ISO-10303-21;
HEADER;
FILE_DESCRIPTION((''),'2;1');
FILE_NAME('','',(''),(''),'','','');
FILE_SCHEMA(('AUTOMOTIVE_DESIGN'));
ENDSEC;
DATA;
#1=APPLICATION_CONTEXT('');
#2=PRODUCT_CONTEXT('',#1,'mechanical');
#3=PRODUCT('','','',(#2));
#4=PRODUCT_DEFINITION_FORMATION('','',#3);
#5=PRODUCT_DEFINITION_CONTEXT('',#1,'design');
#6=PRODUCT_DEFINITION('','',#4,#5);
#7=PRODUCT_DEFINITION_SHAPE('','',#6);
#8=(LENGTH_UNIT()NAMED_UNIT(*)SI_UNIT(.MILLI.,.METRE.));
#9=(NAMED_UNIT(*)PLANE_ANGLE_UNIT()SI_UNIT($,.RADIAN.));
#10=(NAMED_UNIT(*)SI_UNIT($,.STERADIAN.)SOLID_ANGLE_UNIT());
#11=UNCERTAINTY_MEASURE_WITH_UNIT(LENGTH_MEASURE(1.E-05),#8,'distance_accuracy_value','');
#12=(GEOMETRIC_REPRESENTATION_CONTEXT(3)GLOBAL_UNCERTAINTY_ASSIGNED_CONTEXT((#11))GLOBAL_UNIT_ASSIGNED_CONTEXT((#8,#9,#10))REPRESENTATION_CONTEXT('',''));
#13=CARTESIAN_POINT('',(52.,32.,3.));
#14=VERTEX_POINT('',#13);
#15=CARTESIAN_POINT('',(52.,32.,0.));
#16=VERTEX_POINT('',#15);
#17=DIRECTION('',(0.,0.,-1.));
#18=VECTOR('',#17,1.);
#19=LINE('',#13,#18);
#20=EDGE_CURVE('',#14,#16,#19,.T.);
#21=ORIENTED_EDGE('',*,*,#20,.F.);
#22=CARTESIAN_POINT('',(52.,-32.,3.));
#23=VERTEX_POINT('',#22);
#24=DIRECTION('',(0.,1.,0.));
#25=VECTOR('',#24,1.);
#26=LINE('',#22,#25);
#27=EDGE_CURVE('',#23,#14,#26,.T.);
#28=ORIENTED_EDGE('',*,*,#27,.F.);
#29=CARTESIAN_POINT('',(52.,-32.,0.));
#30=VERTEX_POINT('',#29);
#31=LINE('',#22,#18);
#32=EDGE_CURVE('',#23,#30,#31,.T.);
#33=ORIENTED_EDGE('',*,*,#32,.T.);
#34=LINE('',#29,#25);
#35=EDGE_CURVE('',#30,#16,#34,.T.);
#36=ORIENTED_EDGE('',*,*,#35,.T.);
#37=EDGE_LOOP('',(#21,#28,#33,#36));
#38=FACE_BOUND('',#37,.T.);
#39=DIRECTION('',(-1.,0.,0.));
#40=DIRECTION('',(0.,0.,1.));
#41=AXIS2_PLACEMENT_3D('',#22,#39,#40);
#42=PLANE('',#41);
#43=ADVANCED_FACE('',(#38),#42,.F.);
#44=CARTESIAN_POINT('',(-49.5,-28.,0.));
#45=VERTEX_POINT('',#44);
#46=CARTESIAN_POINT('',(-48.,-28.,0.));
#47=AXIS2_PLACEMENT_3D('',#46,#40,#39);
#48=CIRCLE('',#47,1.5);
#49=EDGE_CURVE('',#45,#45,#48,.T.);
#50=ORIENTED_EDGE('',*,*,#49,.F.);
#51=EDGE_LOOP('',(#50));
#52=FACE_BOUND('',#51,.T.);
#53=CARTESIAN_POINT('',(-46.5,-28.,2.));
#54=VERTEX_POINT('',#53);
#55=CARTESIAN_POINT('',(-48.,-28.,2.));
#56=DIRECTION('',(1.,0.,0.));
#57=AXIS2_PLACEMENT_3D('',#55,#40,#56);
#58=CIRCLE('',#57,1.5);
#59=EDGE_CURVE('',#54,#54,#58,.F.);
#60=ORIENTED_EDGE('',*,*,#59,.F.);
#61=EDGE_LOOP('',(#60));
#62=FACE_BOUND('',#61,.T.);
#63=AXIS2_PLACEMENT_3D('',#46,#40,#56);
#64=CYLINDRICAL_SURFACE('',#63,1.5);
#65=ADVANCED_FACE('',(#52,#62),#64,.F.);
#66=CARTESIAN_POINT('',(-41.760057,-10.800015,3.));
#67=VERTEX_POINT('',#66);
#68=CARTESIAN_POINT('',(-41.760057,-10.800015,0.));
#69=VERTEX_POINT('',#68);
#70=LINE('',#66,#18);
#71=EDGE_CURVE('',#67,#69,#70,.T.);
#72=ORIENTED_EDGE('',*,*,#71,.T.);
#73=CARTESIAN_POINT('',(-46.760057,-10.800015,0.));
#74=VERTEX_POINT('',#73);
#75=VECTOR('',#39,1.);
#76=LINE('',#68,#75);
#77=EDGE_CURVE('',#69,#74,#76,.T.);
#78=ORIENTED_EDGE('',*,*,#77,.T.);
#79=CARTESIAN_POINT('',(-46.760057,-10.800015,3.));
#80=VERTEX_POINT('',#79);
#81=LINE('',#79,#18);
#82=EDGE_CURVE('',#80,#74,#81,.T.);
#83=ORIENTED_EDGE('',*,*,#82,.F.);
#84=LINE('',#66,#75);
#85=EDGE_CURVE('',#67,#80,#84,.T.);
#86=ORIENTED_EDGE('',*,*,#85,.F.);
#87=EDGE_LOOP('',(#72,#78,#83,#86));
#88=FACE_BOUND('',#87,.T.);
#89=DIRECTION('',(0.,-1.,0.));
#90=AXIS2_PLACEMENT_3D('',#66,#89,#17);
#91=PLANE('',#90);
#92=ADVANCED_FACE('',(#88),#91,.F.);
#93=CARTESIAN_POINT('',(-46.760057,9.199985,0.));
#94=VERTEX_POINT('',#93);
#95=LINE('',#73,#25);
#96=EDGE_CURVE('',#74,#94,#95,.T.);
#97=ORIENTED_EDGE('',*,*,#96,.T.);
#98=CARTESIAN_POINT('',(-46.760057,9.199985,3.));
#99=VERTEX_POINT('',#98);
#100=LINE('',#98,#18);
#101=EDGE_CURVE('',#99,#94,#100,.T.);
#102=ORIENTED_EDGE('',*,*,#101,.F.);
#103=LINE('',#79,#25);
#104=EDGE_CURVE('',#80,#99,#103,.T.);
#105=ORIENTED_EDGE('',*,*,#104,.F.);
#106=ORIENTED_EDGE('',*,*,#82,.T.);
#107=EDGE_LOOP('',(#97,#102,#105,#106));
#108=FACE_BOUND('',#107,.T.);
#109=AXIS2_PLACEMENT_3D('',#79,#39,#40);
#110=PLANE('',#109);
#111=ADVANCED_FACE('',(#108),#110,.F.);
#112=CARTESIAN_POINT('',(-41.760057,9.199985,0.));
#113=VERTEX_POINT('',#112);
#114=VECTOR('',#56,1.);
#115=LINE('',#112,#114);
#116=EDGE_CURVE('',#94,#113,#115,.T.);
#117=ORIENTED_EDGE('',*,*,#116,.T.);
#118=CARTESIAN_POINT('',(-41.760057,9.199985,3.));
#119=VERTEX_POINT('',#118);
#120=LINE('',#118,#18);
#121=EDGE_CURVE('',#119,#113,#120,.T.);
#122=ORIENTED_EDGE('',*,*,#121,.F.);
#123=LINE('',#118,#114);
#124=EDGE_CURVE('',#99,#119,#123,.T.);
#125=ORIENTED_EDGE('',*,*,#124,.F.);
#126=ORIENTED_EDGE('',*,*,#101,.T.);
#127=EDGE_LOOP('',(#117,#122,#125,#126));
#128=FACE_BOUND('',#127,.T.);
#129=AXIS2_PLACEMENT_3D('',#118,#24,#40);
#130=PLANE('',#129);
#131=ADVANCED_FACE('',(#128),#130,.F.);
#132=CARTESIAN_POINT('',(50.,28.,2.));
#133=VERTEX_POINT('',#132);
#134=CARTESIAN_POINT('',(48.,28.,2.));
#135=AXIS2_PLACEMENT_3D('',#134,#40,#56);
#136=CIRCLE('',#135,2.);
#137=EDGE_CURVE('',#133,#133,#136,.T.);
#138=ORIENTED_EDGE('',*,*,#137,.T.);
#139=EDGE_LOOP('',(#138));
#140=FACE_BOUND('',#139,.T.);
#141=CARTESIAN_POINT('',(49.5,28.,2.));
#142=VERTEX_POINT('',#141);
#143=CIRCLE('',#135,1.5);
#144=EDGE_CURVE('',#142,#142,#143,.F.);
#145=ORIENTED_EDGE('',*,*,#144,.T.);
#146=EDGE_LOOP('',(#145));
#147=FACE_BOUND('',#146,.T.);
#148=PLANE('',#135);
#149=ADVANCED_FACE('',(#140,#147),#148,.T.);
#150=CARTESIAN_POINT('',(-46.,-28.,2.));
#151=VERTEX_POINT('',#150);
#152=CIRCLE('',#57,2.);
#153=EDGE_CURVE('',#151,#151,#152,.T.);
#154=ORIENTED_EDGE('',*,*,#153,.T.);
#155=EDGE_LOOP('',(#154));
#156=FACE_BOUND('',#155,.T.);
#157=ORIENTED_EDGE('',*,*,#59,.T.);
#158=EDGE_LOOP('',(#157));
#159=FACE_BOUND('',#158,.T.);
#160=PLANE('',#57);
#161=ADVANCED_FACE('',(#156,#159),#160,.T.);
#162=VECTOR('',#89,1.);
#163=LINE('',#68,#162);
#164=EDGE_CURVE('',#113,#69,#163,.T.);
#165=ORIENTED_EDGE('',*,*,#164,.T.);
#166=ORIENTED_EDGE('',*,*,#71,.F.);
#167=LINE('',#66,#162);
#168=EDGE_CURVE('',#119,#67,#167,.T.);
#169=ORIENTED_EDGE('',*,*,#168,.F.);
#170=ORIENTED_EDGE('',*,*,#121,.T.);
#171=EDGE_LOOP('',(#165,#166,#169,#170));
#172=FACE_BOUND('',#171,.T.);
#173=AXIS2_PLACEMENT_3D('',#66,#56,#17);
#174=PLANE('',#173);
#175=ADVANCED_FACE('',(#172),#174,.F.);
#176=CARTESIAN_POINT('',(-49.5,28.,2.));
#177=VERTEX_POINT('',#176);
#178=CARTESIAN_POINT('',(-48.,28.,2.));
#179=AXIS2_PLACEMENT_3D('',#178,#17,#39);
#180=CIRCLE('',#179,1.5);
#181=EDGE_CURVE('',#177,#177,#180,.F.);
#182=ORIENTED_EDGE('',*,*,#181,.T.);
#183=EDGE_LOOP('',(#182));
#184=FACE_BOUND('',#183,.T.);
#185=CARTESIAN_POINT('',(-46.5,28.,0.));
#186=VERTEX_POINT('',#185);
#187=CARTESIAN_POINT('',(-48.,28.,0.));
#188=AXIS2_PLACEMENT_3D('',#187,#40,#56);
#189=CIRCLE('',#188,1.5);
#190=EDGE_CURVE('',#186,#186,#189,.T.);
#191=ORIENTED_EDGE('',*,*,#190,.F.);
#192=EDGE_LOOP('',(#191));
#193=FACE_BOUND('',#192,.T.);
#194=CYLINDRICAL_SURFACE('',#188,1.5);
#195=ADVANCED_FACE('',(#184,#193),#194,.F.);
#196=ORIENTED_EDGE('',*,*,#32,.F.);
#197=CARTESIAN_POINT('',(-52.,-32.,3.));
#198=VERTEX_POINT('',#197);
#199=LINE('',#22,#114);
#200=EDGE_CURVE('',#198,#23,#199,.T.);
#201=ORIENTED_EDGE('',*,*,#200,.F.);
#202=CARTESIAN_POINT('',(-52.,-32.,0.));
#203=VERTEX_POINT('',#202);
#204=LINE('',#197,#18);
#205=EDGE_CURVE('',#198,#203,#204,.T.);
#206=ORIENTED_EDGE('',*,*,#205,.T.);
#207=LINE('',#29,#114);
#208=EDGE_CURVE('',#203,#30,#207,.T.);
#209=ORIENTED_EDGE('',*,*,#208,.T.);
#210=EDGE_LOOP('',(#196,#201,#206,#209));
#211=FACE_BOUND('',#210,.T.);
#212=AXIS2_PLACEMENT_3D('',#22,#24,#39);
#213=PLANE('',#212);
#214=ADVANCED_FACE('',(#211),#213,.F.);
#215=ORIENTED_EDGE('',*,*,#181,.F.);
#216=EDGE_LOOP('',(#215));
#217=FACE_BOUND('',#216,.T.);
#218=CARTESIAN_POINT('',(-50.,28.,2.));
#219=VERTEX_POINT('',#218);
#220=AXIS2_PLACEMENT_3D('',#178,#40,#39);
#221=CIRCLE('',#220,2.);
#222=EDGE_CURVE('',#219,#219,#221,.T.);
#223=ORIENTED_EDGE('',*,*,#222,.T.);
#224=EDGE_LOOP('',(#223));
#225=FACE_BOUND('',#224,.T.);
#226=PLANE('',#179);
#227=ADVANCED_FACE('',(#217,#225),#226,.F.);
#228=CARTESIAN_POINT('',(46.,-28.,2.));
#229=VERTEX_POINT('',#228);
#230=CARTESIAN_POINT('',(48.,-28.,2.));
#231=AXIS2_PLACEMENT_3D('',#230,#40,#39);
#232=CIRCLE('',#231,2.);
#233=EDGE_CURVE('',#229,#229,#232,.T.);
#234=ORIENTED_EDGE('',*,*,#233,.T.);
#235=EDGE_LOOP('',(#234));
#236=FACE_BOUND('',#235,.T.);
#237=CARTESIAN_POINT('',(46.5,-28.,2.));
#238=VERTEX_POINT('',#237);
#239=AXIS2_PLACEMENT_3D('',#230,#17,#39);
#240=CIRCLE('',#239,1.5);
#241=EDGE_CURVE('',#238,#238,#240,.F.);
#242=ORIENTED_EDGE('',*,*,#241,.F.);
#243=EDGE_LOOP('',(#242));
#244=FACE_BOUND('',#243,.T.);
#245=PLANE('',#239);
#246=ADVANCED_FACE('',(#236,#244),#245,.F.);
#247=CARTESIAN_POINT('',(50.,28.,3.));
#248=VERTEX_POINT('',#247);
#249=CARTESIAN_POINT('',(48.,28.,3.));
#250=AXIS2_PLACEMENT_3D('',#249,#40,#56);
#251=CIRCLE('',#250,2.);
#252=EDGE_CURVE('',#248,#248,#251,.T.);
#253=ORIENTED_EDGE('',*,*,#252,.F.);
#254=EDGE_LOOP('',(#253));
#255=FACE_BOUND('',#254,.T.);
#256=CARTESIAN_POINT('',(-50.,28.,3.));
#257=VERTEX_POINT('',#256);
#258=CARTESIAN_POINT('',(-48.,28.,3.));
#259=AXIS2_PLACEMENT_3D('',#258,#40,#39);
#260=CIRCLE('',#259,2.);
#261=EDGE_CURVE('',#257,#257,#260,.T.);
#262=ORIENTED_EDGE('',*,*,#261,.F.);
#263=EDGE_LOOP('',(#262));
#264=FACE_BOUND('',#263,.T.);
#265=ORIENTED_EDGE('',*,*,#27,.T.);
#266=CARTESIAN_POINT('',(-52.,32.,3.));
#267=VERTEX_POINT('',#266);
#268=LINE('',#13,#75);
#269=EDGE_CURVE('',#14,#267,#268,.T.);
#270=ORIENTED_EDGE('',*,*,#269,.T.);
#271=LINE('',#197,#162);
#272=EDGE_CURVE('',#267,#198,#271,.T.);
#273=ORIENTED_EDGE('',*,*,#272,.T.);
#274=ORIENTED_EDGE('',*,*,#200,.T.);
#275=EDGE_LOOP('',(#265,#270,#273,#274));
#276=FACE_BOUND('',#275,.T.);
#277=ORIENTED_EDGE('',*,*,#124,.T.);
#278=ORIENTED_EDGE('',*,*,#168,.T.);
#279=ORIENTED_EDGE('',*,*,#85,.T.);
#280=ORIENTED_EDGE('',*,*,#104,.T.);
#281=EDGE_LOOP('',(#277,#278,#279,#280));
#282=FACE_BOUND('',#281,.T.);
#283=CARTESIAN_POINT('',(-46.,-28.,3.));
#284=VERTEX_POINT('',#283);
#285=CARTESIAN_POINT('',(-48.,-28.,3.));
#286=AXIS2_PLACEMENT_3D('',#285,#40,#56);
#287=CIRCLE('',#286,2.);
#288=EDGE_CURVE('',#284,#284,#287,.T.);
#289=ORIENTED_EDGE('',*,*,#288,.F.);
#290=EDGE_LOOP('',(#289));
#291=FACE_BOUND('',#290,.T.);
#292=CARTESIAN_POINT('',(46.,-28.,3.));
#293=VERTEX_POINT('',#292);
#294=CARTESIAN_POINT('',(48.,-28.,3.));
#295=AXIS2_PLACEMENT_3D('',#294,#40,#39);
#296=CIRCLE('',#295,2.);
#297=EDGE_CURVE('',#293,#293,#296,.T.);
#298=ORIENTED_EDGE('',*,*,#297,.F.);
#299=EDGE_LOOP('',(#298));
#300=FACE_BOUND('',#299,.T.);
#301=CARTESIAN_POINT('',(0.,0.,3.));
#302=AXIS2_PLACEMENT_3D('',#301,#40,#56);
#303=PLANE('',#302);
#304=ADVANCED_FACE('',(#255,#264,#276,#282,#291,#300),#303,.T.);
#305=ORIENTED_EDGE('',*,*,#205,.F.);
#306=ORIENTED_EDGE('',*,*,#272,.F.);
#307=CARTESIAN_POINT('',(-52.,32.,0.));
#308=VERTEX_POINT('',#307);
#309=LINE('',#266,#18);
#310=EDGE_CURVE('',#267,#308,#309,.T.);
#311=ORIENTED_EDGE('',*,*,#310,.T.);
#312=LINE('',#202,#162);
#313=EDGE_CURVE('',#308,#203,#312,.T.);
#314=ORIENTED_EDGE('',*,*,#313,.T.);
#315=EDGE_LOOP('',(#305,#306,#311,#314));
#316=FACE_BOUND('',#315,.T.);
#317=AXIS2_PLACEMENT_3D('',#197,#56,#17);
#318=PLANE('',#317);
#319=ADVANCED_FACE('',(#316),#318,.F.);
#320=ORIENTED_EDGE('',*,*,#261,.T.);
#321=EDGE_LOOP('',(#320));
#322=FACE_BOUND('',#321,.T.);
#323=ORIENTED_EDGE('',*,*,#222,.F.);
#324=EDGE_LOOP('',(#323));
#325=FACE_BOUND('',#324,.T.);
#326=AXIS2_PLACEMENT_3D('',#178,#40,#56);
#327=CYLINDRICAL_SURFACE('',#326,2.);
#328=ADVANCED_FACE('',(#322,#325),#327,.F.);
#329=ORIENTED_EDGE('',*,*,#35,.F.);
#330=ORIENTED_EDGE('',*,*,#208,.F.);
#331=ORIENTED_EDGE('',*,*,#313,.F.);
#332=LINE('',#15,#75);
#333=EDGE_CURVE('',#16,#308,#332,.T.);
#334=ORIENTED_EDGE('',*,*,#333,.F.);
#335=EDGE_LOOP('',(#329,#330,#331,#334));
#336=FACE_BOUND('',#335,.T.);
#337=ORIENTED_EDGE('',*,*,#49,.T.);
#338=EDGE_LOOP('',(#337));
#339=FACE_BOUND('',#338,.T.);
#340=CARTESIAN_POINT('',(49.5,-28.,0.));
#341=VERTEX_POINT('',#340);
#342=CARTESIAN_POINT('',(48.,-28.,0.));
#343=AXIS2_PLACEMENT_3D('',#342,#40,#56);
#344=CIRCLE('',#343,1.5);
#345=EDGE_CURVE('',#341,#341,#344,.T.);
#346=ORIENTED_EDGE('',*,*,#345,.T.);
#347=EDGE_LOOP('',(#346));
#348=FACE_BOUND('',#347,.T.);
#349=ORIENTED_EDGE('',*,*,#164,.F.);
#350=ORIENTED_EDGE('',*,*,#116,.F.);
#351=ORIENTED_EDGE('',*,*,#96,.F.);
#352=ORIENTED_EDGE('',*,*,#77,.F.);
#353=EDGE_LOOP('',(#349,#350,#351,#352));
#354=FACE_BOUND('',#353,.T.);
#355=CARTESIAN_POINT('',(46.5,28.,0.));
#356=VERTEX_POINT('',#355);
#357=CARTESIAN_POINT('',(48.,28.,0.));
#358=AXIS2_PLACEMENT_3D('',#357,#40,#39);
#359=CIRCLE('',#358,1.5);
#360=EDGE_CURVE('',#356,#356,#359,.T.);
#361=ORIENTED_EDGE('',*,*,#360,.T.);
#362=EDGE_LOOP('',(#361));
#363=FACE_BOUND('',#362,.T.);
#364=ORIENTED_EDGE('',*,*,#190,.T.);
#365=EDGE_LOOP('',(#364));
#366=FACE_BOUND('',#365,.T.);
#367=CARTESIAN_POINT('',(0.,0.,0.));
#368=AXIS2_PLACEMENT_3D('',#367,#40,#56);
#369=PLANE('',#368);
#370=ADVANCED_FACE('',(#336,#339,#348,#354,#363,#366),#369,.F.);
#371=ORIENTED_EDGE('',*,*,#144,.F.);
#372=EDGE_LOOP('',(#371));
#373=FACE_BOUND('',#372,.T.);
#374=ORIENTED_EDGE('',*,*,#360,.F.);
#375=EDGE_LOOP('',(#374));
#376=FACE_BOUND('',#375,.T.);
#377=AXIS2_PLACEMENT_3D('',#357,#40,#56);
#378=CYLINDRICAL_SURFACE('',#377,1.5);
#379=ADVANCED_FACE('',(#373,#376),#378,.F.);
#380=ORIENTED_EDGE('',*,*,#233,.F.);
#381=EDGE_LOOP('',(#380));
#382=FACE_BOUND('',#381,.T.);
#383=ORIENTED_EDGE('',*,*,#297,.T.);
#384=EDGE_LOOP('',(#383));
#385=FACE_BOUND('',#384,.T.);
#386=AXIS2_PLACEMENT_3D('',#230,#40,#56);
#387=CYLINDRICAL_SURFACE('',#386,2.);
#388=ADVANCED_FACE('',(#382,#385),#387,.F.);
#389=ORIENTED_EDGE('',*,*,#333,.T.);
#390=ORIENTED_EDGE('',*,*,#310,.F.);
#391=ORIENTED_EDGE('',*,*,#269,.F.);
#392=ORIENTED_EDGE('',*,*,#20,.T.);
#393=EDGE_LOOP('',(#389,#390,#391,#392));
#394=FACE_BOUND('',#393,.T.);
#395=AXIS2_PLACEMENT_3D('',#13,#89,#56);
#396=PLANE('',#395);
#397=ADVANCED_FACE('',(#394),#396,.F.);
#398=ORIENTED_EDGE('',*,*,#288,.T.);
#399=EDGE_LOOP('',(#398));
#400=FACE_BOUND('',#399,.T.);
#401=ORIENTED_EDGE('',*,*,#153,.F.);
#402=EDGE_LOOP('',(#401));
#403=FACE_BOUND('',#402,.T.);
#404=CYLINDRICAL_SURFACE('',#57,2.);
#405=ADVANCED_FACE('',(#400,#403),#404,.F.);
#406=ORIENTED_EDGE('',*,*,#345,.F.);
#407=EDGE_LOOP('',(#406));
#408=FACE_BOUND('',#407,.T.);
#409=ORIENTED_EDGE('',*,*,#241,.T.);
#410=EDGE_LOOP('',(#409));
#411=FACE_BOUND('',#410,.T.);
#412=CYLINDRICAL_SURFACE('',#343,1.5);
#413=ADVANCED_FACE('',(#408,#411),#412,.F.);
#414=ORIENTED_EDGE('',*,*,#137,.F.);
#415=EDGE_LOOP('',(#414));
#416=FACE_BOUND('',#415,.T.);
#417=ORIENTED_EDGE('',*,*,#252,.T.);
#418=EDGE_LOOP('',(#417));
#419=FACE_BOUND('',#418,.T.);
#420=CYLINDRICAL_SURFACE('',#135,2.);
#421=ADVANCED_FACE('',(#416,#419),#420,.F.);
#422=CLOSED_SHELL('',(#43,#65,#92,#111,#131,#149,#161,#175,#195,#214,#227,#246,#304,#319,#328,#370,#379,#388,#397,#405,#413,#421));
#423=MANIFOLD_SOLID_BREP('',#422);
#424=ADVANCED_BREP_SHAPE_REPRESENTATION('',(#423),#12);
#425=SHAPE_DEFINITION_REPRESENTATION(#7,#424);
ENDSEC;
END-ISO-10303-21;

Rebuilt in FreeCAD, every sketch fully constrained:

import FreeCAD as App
import Part
import Sketcher
from FreeCAD import Vector
Q = App.Units.Quantity

doc = App.newDocument("Part")
body = doc.addObject("PartDesign::Body", "Body")

# Sketch on XY plane
sketch1 = doc.addObject("Sketcher::SketchObject", "Sketch")
body.addObject(sketch1)
sketch1.AttachmentSupport = (doc.XY_Plane, [""])
sketch1.MapMode = "FlatFace"
sketch1.addGeometry(Part.LineSegment(Vector(-52, 32, 0), Vector(-52, -32, 0)), False)
sketch1.addGeometry(Part.LineSegment(Vector(-52, -32, 0), Vector(52, -32, 0)), False)
sketch1.addGeometry(Part.LineSegment(Vector(52, -32, 0), Vector(52, 32, 0)), False)
sketch1.addGeometry(Part.LineSegment(Vector(52, 32, 0), Vector(-52, 32, 0)), False)
sketch1.addConstraint(Sketcher.Constraint("Coincident", 0, 2, 1, 1))
sketch1.addConstraint(Sketcher.Constraint("Coincident", 1, 2, 2, 1))
sketch1.addConstraint(Sketcher.Constraint("Coincident", 2, 2, 3, 1))
sketch1.addConstraint(Sketcher.Constraint("Coincident", 3, 2, 0, 1))
sketch1.addConstraint(Sketcher.Constraint("Vertical", 0))
sketch1.addConstraint(Sketcher.Constraint("Horizontal", 1))
sketch1.addConstraint(Sketcher.Constraint("Vertical", 2))
sketch1.addConstraint(Sketcher.Constraint("Horizontal", 3))
sketch1.addConstraint(Sketcher.Constraint("Symmetric", 0, 2, 2, 2, -1, 1))
sketch1.addConstraint(Sketcher.Constraint("DistanceX", 1, 1, 1, 2, Q("104 mm")))
sketch1.addConstraint(Sketcher.Constraint("DistanceY", 0, 2, 0, 1, Q("64 mm")))
pad1 = doc.addObject("PartDesign::Pad", "Pad")
body.addObject(pad1)
pad1.Profile = sketch1
pad1.Length = 3

# Sketch on XY plane
sketch2 = doc.addObject("Sketcher::SketchObject", "Sketch001")
body.addObject(sketch2)
sketch2.AttachmentSupport = (doc.XY_Plane, [""])
sketch2.MapMode = "FlatFace"
sketch2.AttachmentOffset = App.Placement(Vector(0, 0, 3), App.Rotation())
sketch2.addGeometry(Part.Circle(Vector(-48, 28, 0), Vector(0, 0, 1), 1.5), False)
sketch2.addGeometry(Part.Circle(Vector(48, 28, 0), Vector(0, 0, 1), 1.5), False)
sketch2.addGeometry(Part.Circle(Vector(48, -28, 0), Vector(0, 0, 1), 1.5), False)
sketch2.addGeometry(Part.Circle(Vector(-48, -28, 0), Vector(0, 0, 1), 1.5), False)
sketch2.addConstraint(Sketcher.Constraint("Equal", 0, 1))
sketch2.addConstraint(Sketcher.Constraint("Equal", 1, 2))
sketch2.addConstraint(Sketcher.Constraint("Equal", 2, 3))
sketch2.addConstraint(Sketcher.Constraint("Symmetric", 0, 3, 2, 3, -1, 1))
sketch2.addConstraint(Sketcher.Constraint("Symmetric", 1, 3, 3, 3, -1, 1))
sketch2.addConstraint(Sketcher.Constraint("Symmetric", 0, 3, 1, 3, -2))
sketch2.addConstraint(Sketcher.Constraint("Diameter", 0, Q("3 mm")))
sketch2.addConstraint(Sketcher.Constraint("DistanceX", 0, 3, -1, 1, Q("48 mm")))
sketch2.addConstraint(Sketcher.Constraint("DistanceY", -1, 1, 0, 3, Q("28 mm")))
pocket1 = doc.addObject("PartDesign::Pocket", "Pocket")
body.addObject(pocket1)
pocket1.Profile = sketch2
pocket1.Type = "ThroughAll"

# Sketch on XY plane
sketch3 = doc.addObject("Sketcher::SketchObject", "Sketch002")
body.addObject(sketch3)
sketch3.AttachmentSupport = (doc.XY_Plane, [""])
sketch3.MapMode = "FlatFace"
sketch3.addGeometry(Part.LineSegment(Vector(-42, 9, 0), Vector(-42, -11, 0)), False)
sketch3.addGeometry(Part.LineSegment(Vector(-42, -11, 0), Vector(-47, -11, 0)), False)
sketch3.addGeometry(Part.LineSegment(Vector(-47, -11, 0), Vector(-47, 9, 0)), False)
sketch3.addGeometry(Part.LineSegment(Vector(-47, 9, 0), Vector(-42, 9, 0)), False)
sketch3.addConstraint(Sketcher.Constraint("Coincident", 0, 2, 1, 1))
sketch3.addConstraint(Sketcher.Constraint("Coincident", 1, 2, 2, 1))
sketch3.addConstraint(Sketcher.Constraint("Coincident", 2, 2, 3, 1))
sketch3.addConstraint(Sketcher.Constraint("Coincident", 3, 2, 0, 1))
sketch3.addConstraint(Sketcher.Constraint("Vertical", 0))
sketch3.addConstraint(Sketcher.Constraint("Horizontal", 1))
sketch3.addConstraint(Sketcher.Constraint("Vertical", 2))
sketch3.addConstraint(Sketcher.Constraint("Horizontal", 3))
sketch3.addConstraint(Sketcher.Constraint("DistanceX", 1, 2, 1, 1, Q("5 mm")))
sketch3.addConstraint(Sketcher.Constraint("DistanceY", 0, 2, 0, 1, Q("20 mm")))
sketch3.addConstraint(Sketcher.Constraint("DistanceX", 0, 2, -1, 1, Q("41.760057 mm")))
sketch3.addConstraint(Sketcher.Constraint("DistanceY", 0, 2, -1, 1, Q("10.800015 mm")))
pocket2 = doc.addObject("PartDesign::Pocket", "Pocket001")
body.addObject(pocket2)
pocket2.Profile = sketch3
pocket2.Type = "ThroughAll"
pocket2.Reversed = True

# Sketch on XY plane
sketch4 = doc.addObject("Sketcher::SketchObject", "Sketch003")
body.addObject(sketch4)
sketch4.AttachmentSupport = (doc.XY_Plane, [""])
sketch4.MapMode = "FlatFace"
sketch4.AttachmentOffset = App.Placement(Vector(0, 0, 3), App.Rotation())
sketch4.addGeometry(Part.Circle(Vector(48, 28, 0), Vector(0, 0, 1), 2), False)
sketch4.addGeometry(Part.Circle(Vector(-48, 28, 0), Vector(0, 0, 1), 2), False)
sketch4.addGeometry(Part.Circle(Vector(-48, -28, 0), Vector(0, 0, 1), 2), False)
sketch4.addGeometry(Part.Circle(Vector(48, -28, 0), Vector(0, 0, 1), 2), False)
sketch4.addConstraint(Sketcher.Constraint("Equal", 0, 1))
sketch4.addConstraint(Sketcher.Constraint("Equal", 1, 2))
sketch4.addConstraint(Sketcher.Constraint("Equal", 2, 3))
sketch4.addConstraint(Sketcher.Constraint("Symmetric", 0, 3, 2, 3, -1, 1))
sketch4.addConstraint(Sketcher.Constraint("Symmetric", 1, 3, 3, 3, -1, 1))
sketch4.addConstraint(Sketcher.Constraint("Symmetric", 0, 3, 1, 3, -2))
sketch4.addConstraint(Sketcher.Constraint("Diameter", 0, Q("4 mm")))
sketch4.addConstraint(Sketcher.Constraint("DistanceX", -1, 1, 0, 3, Q("48 mm")))
sketch4.addConstraint(Sketcher.Constraint("DistanceY", -1, 1, 0, 3, Q("28 mm")))
pocket3 = doc.addObject("PartDesign::Pocket", "Pocket002")
body.addObject(pocket3)
pocket3.Profile = sketch4
pocket3.Length = 1

doc.recompute()
